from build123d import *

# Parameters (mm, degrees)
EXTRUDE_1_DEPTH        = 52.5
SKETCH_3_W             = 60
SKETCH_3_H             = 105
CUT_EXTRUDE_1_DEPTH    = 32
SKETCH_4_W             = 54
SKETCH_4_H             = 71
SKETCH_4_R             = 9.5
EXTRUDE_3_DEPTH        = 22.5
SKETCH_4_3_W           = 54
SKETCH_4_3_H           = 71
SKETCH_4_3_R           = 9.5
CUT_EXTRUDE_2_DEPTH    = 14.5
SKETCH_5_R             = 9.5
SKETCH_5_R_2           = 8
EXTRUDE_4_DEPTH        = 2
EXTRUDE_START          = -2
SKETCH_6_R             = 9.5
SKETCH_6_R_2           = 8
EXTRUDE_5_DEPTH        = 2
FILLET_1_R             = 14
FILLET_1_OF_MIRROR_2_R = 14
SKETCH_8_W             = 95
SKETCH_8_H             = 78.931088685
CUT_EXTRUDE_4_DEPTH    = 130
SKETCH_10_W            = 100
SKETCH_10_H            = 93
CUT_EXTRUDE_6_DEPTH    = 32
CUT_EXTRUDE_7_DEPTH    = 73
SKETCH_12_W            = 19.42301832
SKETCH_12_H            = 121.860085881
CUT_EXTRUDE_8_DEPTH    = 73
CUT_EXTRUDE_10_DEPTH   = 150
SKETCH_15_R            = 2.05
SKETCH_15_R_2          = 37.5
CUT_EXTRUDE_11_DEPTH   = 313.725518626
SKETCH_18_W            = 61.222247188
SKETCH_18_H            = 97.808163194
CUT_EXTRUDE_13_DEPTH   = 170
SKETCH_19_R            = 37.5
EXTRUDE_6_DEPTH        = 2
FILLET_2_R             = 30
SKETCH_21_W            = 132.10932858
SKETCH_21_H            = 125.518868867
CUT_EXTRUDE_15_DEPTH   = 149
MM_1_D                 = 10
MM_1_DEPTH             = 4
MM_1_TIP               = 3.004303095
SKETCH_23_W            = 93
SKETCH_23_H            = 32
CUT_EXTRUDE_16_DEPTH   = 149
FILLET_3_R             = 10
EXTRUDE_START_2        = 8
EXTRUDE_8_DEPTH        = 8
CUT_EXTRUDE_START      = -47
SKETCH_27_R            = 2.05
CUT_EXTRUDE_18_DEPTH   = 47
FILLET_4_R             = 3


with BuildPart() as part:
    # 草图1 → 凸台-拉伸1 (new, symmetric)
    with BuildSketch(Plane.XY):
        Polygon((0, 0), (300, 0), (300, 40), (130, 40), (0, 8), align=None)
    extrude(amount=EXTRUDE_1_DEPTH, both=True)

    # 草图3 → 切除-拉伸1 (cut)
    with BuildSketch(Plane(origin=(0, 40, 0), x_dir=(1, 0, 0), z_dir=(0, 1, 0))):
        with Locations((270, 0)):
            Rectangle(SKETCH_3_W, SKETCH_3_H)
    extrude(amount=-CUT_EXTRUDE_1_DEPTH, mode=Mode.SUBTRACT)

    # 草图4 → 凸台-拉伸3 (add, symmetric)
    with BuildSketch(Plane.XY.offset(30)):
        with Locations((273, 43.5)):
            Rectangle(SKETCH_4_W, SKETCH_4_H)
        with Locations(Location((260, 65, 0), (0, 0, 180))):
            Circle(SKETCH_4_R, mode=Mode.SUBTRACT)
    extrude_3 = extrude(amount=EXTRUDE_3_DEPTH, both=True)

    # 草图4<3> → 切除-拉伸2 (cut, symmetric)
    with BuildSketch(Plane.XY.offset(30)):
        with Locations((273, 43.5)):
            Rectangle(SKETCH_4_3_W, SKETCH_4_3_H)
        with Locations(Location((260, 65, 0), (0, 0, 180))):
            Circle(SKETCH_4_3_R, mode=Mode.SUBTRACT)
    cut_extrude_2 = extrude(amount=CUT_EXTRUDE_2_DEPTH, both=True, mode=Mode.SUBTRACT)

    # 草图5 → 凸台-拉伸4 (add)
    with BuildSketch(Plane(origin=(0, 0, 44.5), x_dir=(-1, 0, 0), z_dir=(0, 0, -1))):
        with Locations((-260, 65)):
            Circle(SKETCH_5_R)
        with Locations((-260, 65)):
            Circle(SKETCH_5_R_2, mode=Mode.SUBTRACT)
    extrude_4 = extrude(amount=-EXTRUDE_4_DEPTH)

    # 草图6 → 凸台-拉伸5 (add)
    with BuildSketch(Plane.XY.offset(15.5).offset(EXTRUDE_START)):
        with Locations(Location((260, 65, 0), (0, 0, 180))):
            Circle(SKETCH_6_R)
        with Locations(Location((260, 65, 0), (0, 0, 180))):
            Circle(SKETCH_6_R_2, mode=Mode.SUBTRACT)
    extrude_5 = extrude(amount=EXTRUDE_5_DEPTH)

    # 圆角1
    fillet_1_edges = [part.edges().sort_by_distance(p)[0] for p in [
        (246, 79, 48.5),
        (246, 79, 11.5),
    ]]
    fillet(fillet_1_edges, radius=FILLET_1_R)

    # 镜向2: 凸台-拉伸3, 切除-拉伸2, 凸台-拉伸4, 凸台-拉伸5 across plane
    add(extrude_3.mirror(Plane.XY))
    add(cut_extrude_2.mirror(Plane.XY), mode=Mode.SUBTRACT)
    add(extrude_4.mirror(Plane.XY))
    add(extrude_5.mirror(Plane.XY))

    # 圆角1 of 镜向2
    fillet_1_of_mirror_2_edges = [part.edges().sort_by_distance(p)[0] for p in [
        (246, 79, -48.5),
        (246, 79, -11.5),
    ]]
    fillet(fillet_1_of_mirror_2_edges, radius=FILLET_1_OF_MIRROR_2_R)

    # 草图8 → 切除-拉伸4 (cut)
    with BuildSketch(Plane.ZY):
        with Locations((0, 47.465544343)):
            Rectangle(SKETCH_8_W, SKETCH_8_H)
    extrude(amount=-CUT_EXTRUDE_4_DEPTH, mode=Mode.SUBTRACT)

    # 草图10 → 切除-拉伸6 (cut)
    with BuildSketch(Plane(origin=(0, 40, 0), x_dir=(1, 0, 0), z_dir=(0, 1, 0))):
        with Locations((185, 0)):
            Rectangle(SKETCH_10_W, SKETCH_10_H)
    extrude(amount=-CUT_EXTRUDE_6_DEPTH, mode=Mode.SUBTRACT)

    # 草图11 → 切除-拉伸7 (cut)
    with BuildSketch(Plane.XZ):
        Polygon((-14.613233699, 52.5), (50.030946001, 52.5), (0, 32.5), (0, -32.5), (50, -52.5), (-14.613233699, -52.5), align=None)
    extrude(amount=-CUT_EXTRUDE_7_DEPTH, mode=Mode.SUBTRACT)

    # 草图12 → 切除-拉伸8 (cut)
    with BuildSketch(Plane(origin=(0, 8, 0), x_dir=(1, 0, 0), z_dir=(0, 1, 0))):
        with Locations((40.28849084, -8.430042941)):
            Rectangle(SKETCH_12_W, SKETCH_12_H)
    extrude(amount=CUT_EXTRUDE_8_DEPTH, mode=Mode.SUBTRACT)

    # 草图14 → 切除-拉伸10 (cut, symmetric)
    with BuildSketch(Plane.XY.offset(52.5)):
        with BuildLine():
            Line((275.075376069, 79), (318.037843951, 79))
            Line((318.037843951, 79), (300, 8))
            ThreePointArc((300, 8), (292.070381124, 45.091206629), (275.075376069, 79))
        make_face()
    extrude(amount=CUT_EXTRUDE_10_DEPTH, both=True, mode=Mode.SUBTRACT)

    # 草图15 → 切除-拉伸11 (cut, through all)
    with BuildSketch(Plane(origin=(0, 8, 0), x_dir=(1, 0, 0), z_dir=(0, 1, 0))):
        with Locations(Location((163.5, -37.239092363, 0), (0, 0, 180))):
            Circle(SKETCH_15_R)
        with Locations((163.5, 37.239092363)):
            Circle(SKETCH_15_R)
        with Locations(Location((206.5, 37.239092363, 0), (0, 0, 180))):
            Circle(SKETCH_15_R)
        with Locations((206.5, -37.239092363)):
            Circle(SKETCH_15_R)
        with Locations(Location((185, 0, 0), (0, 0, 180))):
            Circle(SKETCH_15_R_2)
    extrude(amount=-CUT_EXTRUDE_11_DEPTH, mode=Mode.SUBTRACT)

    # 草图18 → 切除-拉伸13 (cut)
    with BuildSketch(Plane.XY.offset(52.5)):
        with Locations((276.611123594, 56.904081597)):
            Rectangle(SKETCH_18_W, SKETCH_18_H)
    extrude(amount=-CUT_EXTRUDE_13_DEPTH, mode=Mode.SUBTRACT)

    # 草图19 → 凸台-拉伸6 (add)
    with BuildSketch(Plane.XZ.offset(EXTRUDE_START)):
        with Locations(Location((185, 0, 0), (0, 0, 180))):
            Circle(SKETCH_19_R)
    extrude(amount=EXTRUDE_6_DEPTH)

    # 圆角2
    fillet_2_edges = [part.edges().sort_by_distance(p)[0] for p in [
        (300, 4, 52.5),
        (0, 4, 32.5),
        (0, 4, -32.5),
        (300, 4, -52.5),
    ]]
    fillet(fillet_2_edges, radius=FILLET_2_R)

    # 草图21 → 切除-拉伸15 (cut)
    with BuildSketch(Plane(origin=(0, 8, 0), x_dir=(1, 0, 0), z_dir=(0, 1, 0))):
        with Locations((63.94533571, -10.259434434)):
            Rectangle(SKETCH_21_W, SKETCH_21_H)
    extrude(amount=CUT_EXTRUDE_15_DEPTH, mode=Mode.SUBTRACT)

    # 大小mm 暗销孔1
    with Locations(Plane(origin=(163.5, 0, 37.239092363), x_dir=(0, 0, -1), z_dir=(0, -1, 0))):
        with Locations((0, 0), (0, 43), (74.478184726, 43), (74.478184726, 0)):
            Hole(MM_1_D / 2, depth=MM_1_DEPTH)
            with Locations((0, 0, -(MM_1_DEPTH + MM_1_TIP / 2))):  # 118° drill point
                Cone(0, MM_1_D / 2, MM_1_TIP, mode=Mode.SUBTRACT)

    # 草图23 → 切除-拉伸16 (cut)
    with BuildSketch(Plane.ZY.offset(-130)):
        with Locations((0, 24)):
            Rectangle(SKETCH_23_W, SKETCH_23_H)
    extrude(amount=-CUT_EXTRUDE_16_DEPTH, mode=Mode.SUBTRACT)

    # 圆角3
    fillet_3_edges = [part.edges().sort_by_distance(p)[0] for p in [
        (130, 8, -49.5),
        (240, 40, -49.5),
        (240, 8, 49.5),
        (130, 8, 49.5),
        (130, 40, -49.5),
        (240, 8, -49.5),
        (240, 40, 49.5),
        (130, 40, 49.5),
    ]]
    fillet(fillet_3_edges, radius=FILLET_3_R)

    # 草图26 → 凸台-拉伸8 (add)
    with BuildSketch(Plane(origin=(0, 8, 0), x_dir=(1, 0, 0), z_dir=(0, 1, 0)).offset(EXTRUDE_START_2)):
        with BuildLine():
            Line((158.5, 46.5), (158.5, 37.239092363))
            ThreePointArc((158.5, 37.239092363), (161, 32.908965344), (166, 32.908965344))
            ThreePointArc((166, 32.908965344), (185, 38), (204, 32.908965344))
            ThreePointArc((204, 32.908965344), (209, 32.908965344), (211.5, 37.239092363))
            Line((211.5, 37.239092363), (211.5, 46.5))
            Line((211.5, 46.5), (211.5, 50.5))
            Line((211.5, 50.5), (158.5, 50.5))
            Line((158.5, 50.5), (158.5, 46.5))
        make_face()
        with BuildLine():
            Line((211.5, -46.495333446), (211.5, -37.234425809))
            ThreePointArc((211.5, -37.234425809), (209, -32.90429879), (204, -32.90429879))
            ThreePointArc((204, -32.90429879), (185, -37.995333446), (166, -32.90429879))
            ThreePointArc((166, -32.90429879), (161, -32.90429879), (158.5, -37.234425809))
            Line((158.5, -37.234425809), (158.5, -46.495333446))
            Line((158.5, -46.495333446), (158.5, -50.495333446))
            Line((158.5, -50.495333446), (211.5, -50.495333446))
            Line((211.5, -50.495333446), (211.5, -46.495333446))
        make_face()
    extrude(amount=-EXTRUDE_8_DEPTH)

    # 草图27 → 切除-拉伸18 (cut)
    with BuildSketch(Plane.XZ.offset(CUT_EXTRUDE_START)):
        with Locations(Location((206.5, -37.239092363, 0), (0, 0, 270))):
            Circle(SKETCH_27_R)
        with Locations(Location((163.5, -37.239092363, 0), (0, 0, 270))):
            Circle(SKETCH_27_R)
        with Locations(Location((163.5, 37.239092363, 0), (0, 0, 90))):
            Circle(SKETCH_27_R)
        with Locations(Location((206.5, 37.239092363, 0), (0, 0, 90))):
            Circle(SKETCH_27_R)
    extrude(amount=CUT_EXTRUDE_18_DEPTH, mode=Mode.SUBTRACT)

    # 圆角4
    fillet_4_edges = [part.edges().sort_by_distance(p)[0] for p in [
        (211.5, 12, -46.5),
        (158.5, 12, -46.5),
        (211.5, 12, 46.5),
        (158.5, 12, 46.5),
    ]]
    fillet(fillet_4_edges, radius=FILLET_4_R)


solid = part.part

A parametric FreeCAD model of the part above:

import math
import FreeCAD as App
import Part
import Sketcher
from FreeCAD import Vector
Q = App.Units.Quantity


def edges_at(feature, points):
    """Names of the edges that pass closest to the given points."""
    edges = feature.Shape.Edges
    near = lambda p: min(range(len(edges)), key=lambda i: edges[i].distToShape(Part.Vertex(*p))[0])
    return sorted({f"Edge{near(p) + 1}" for p in points})


def add_polygon(sketch, points):
    """Adds a closed chain of lines whose ends are joined by coincident constraints."""
    first, n = sketch.GeometryCount, len(points)
    for a, b in zip(points, points[1:] + points[:1]):
        sketch.addGeometry(Part.LineSegment(App.Vector(*a, 0), App.Vector(*b, 0)), False)
    for i in range(n):
        sketch.addConstraint(Sketcher.Constraint("Coincident", first + i, 2, first + (i + 1) % n, 1))

doc = App.newDocument("Part")
params = doc.addObject("Spreadsheet::Sheet", "Params")
for row, (alias, value) in enumerate([
    ("sketch1_width", "300 mm"),
    ("sketch1_width2", "170 mm"),
    ("sketch1_height", "40 mm"),
    ("sketch1_height2", "8 mm"),
    ("pad1_length", "105 mm"),
    ("sketch2_width", "60 mm"),
    ("sketch2_height", "105 mm"),
    ("pocket1_length", "32 mm"),
    ("sketch3_diameter", "19 mm"),
    ("sketch3_width", "54 mm"),
    ("sketch3_height", "71 mm"),
    ("pad2_length", "45 mm"),
    ("sketch4_diameter", "19 mm"),
    ("sketch4_width", "54 mm"),
    ("sketch4_height", "71 mm"),
    ("pocket2_length", "29 mm"),
    ("sketch5_diameter", "19 mm"),
    ("sketch5_diameter2", "16 mm"),
    ("pad3_length", "2 mm"),
    ("sketch6_diameter", "19 mm"),
    ("sketch6_diameter2", "16 mm"),
    ("pad4_length", "2 mm"),
    ("fillet_radius", "14 mm"),
    ("fillet2_radius", "14 mm"),
    ("sketch7_height", "95 mm"),
    ("pocket3_length", "130 mm"),
    ("sketch8_width", "100 mm"),
    ("sketch8_height", "93 mm"),
    ("pocket4_length", "32 mm"),
    ("sketch9_height", "105 mm"),
    ("sketch9_height2", "65 mm"),
    ("pocket5_length", "73 mm"),
    ("pocket6_length", "73 mm"),
    ("pocket7_length", "300 mm"),
    ("sketch12_diameter", "75 mm"),
    ("sketch12_diameter2", "4.1 mm"),
    ("pocket9_length", "170 mm"),
    ("sketch14_diameter", "75 mm"),
    ("pad5_length", "2 mm"),
    ("fillet3_radius", "30 mm"),
    ("pocket10_length", "149 mm"),
    ("sketch16_diameter", "10 mm"),
    ("hole_diameter", "10 mm"),
    ("hole_depth", "4 mm"),
    ("sketch17_width", "32 mm"),
    ("sketch17_height", "93 mm"),
    ("pocket11_length", "149 mm"),
    ("fillet4_radius", "10 mm"),
    ("sketch18_radius", "5 mm"),
    ("sketch18_radius2", "38 mm"),
    ("sketch18_width", "53 mm"),
    ("pad6_length", "8 mm"),
    ("sketch19_diameter", "4.1 mm"),
    ("pocket12_length", "47 mm"),
    ("fillet5_radius", "3 mm"),
], start=1):
    params.set(f"A{row}", alias)
    params.set(f"B{row}", "=" + value)
    params.setAlias(f"B{row}", alias)

body = doc.addObject("PartDesign::Body", "Body")

sketch1 = body.newObject("Sketcher::SketchObject", "Sketch")
sketch1.AttachmentSupport = (doc.getObject("XY_Plane"), [""])
sketch1.MapMode = "FlatFace"
add_polygon(sketch1, [(0, 0), (300, 0), (300, 40), (130, 40), (0, 8)])
sketch1.addConstraint([
    Sketcher.Constraint("Horizontal", 0),
    Sketcher.Constraint("Vertical", 1),
    Sketcher.Constraint("Horizontal", 2),
    Sketcher.Constraint("Vertical", 4),
    Sketcher.Constraint("Coincident", 4, 2, -1, 1),
    Sketcher.Constraint("DistanceX", 0, 1, 0, 2, Q("300 mm")),
    Sketcher.Constraint("DistanceX", 2, 2, 2, 1, Q("170 mm")),
    Sketcher.Constraint("DistanceY", 1, 1, 1, 2, Q("40 mm")),
    Sketcher.Constraint("DistanceY", 4, 2, 4, 1, Q("8 mm")),
])
sketch1.setExpression("Constraints[10]", "Params.sketch1_width")
sketch1.setExpression("Constraints[11]", "Params.sketch1_width2")
sketch1.setExpression("Constraints[12]", "Params.sketch1_height")
sketch1.setExpression("Constraints[13]", "Params.sketch1_height2")
pad1 = body.newObject("PartDesign::Pad", "Pad")
pad1.Profile = sketch1
pad1.setExpression("Length", "Params.pad1_length")
pad1.Midplane = True

sketch2 = body.newObject("Sketcher::SketchObject", "Sketch001")
sketch2.AttachmentSupport = (doc.getObject("XZ_Plane"), [""])
sketch2.MapMode = "FlatFace"
sketch2.AttachmentOffset = App.Placement(Vector(0, 0, -40), App.Rotation())
add_polygon(sketch2, [(240, -52.5), (240, 52.5), (300, 52.5), (300, -52.5)])
sketch2.addConstraint([
    Sketcher.Constraint("Vertical", 0),
    Sketcher.Constraint("Horizontal", 1),
    Sketcher.Constraint("Vertical", 2),
    Sketcher.Constraint("Horizontal", 3),
    Sketcher.Constraint("DistanceX", 1, 1, 1, 2, Q("60 mm")),
    Sketcher.Constraint("DistanceY", 0, 1, 0, 2, Q("105 mm")),
    Sketcher.Constraint("DistanceX", -1, 1, 0, 2, Q("240 mm")),
    Sketcher.Constraint("DistanceY", -1, 1, 0, 2, Q("52.5 mm")),
])
sketch2.setExpression("Constraints[8]", "Params.sketch2_width")
sketch2.setExpression("Constraints[9]", "Params.sketch2_height")
pocket1 = body.newObject("PartDesign::Pocket", "Pocket")
pocket1.Profile = sketch2
pocket1.setExpression("Length", "Params.pocket1_length")
pocket1.Reversed = True

sketch3 = body.newObject("Sketcher::SketchObject", "Sketch002")
sketch3.AttachmentSupport = (doc.getObject("XY_Plane"), [""])
sketch3.MapMode = "FlatFace"
sketch3.AttachmentOffset = App.Placement(Vector(0, 0, 30), App.Rotation())
add_polygon(sketch3, [(246, 79), (246, 8), (300, 8), (300, 79)])
sketch3.addGeometry(Part.Circle(Vector(260, 65, 0), Vector(0, 0, 1), 9.5), False)
sketch3.addConstraint([
    Sketcher.Constraint("Vertical", 0),
    Sketcher.Constraint("Horizontal", 1),
    Sketcher.Constraint("Vertical", 2),
    Sketcher.Constraint("Horizontal", 3),
    Sketcher.Constraint("Diameter", 4, Q("19 mm")),
    Sketcher.Constraint("DistanceX", 1, 1, 1, 2, Q("54 mm")),
    Sketcher.Constraint("DistanceY", 0, 2, 0, 1, Q("71 mm")),
    Sketcher.Constraint("DistanceX", -1, 1, 4, 3, Q("260 mm")),
    Sketcher.Constraint("DistanceY", -1, 1, 4, 3, Q("65 mm")),
    Sketcher.Constraint("DistanceX", -1, 1, 0, 2, Q("246 mm")),
    Sketcher.Constraint("DistanceY", -1, 1, 0, 2, Q("8 mm")),
])
sketch3.setExpression("Constraints[8]", "Params.sketch3_diameter")
sketch3.setExpression("Constraints[9]", "Params.sketch3_width")
sketch3.setExpression("Constraints[10]", "Params.sketch3_height")
pad2 = body.newObject("PartDesign::Pad", "Pad001")
pad2.Profile = sketch3
pad2.setExpression("Length", "Params.pad2_length")
pad2.Midplane = True

sketch4 = body.newObject("Sketcher::SketchObject", "Sketch003")
sketch4.AttachmentSupport = (doc.getObject("XY_Plane"), [""])
sketch4.MapMode = "FlatFace"
sketch4.AttachmentOffset = App.Placement(Vector(0, 0, 30), App.Rotation())
add_polygon(sketch4, [(246, 79), (246, 8), (300, 8), (300, 79)])
sketch4.addGeometry(Part.Circle(Vector(260, 65, 0), Vector(0, 0, 1), 9.5), False)
sketch4.addConstraint([
    Sketcher.Constraint("Vertical", 0),
    Sketcher.Constraint("Horizontal", 1),
    Sketcher.Constraint("Vertical", 2),
    Sketcher.Constraint("Horizontal", 3),
    Sketcher.Constraint("Diameter", 4, Q("19 mm")),
    Sketcher.Constraint("DistanceX", 1, 1, 1, 2, Q("54 mm")),
    Sketcher.Constraint("DistanceY", 0, 2, 0, 1, Q("71 mm")),
    Sketcher.Constraint("DistanceX", -1, 1, 4, 3, Q("260 mm")),
    Sketcher.Constraint("DistanceY", -1, 1, 4, 3, Q("65 mm")),
    Sketcher.Constraint("DistanceX", -1, 1, 0, 2, Q("246 mm")),
    Sketcher.Constraint("DistanceY", -1, 1, 0, 2, Q("8 mm")),
])
sketch4.setExpression("Constraints[8]", "Params.sketch4_diameter")
sketch4.setExpression("Constraints[9]", "Params.sketch4_width")
sketch4.setExpression("Constraints[10]", "Params.sketch4_height")
pocket2 = body.newObject("PartDesign::Pocket", "Pocket001")
pocket2.Profile = sketch4
pocket2.setExpression("Length", "Params.pocket2_length")
pocket2.Midplane = True

sketch5 = body.newObject("Sketcher::SketchObject", "Sketch004")
sketch5.AttachmentSupport = (doc.getObject("XY_Plane"), [""])
sketch5.MapMode = "FlatFace"
sketch5.AttachmentOffset = App.Placement(Vector(0, 0, 44.5), App.Rotation())
sketch5.addGeometry([
    Part.Circle(Vector(260, 65, 0), Vector(0, 0, 1), 9.5),
    Part.Circle(Vector(260, 65, 0), Vector(0, 0, 1), 8),
], False)
sketch5.addConstraint([
    Sketcher.Constraint("Coincident", 1, 3, 0, 3),
    Sketcher.Constraint("Diameter", 0, Q("19 mm")),
    Sketcher.Constraint("Diameter", 1, Q("16 mm")),
    Sketcher.Constraint("DistanceX", -1, 1, 0, 3, Q("260 mm")),
    Sketcher.Constraint("DistanceY", -1, 1, 0, 3, Q("65 mm")),
])
sketch5.setExpression("Constraints[1]", "Params.sketch5_diameter")
sketch5.setExpression("Constraints[2]", "Params.sketch5_diameter2")
pad3 = body.newObject("PartDesign::Pad", "Pad002")
pad3.Profile = sketch5
pad3.setExpression("Length", "Params.pad3_length")

sketch6 = body.newObject("Sketcher::SketchObject", "Sketch005")
sketch6.AttachmentSupport = (doc.getObject("XY_Plane"), [""])
sketch6.MapMode = "FlatFace"
sketch6.AttachmentOffset = App.Placement(Vector(0, 0, 13.5), App.Rotation())
sketch6.addGeometry([
    Part.Circle(Vector(260, 65, 0), Vector(0, 0, 1), 9.5),
    Part.Circle(Vector(260, 65, 0), Vector(0, 0, 1), 8),
], False)
sketch6.addConstraint([
    Sketcher.Constraint("Coincident", 1, 3, 0, 3),
    Sketcher.Constraint("Diameter", 0, Q("19 mm")),
    Sketcher.Constraint("Diameter", 1, Q("16 mm")),
    Sketcher.Constraint("DistanceX", -1, 1, 0, 3, Q("260 mm")),
    Sketcher.Constraint("DistanceY", -1, 1, 0, 3, Q("65 mm")),
])
sketch6.setExpression("Constraints[1]", "Params.sketch6_diameter")
sketch6.setExpression("Constraints[2]", "Params.sketch6_diameter2")
pad4 = body.newObject("PartDesign::Pad", "Pad003")
pad4.Profile = sketch6
pad4.setExpression("Length", "Params.pad4_length")
doc.recompute()

fillet = body.newObject("PartDesign::Fillet", "Fillet")
fillet.Base = (pad4, edges_at(pad4, [(246, 79, 48.5), (246, 79, 11.5)]))
fillet.setExpression("Radius", "Params.fillet_radius")
doc.recompute()

mirrored = body.newObject("PartDesign::Mirrored", "Mirrored")
mirrored.Originals = [pad2, pocket2, pad3, pad4]
mirrored.MirrorPlane = (doc.getObject("XY_Plane"), [""])
body.Tip = mirrored
doc.recompute()

fillet2 = body.newObject("PartDesign::Fillet", "Fillet001")
fillet2.Base = (mirrored, edges_at(mirrored, [(246, 79, -48.5), (246, 79, -11.5)]))
fillet2.setExpression("Radius", "Params.fillet2_radius")

sketch7 = body.newObject("Sketcher::SketchObject", "Sketch006")
sketch7.AttachmentSupport = (doc.getObject("YZ_Plane"), [""])
sketch7.MapMode = "FlatFace"
add_polygon(sketch7, [(86.931089, -47.5), (8, -47.5), (8, 47.5), (86.931089, 47.5)])
sketch7.addConstraint([
    Sketcher.Constraint("Horizontal", 0),
    Sketcher.Constraint("Vertical", 1),
    Sketcher.Constraint("Horizontal", 2),
    Sketcher.Constraint("Vertical", 3),
    Sketcher.Constraint("DistanceY", 1, 1, 1, 2, Q("95 mm")),
    Sketcher.Constraint("DistanceX", -1, 1, 0, 2, Q("8 mm")),
    Sketcher.Constraint("DistanceY", 0, 2, -1, 1, Q("47.5 mm")),
    Sketcher.Constraint("DistanceX", 0, 2, 0, 1, Q("78.931089 mm")),
])
sketch7.setExpression("Constraints[8]", "Params.sketch7_height")
pocket3 = body.newObject("PartDesign::Pocket", "Pocket002")
pocket3.Profile = sketch7
pocket3.setExpression("Length", "Params.pocket3_length")
pocket3.Reversed = True

sketch8 = body.newObject("Sketcher::SketchObject", "Sketch007")
sketch8.AttachmentSupport = (doc.getObject("XZ_Plane"), [""])
sketch8.MapMode = "FlatFace"
sketch8.AttachmentOffset = App.Placement(Vector(0, 0, -40), App.Rotation())
add_polygon(sketch8, [(135, -46.5), (135, 46.5), (235, 46.5), (235, -46.5)])
sketch8.addConstraint([
    Sketcher.Constraint("Vertical", 0),
    Sketcher.Constraint("Horizontal", 1),
    Sketcher.Constraint("Vertical", 2),
    Sketcher.Constraint("Horizontal", 3),
    Sketcher.Constraint("DistanceX", 1, 1, 1, 2, Q("100 mm")),
    Sketcher.Constraint("DistanceY", 0, 1, 0, 2, Q("93 mm")),
    Sketcher.Constraint("DistanceX", -1, 1, 0, 2, Q("135 mm")),
    Sketcher.Constraint("DistanceY", -1, 1, 0, 2, Q("46.5 mm")),
])
sketch8.setExpression("Constraints[8]", "Params.sketch8_width")
sketch8.setExpression("Constraints[9]", "Params.sketch8_height")
pocket4 = body.newObject("PartDesign::Pocket", "Pocket003")
pocket4.Profile = sketch8
pocket4.setExpression("Length", "Params.pocket4_length")
pocket4.Reversed = True

sketch9 = body.newObject("Sketcher::SketchObject", "Sketch008")
sketch9.AttachmentSupport = (doc.getObject("XZ_Plane"), [""])
sketch9.MapMode = "FlatFace"
add_polygon(sketch9, [(50.030946, 52.5), (-14.613234, 52.5), (-14.613234, -52.5), (50, -52.5), (0, -32.5), (0, 32.5)])
sketch9.addConstraint([
    Sketcher.Constraint("Horizontal", 0),
    Sketcher.Constraint("Vertical", 1),
    Sketcher.Constraint("Horizontal", 2),
    Sketcher.Constraint("Vertical", 4),
    Sketcher.Constraint("Symmetric", 3, 2, 4, 2, -1, 1),
    Sketcher.Constraint("DistanceY", 1, 2, 1, 1, Q("105 mm")),
    Sketcher.Constraint("DistanceY", 4, 1, 4, 2, Q("65 mm")),
    Sketcher.Constraint("DistanceX", -1, 1, 2, 2, Q("50 mm")),
    Sketcher.Constraint("DistanceY", 1, 2, 3, 2, Q("20 mm")),
    Sketcher.Constraint("DistanceX", 0, 2, 0, 1, Q("64.64418 mm")),
    Sketcher.Constraint("Distance", 5, Q("53.880382 mm")),
])
sketch9.setExpression("Constraints[11]", "Params.sketch9_height")
sketch9.setExpression("Constraints[12]", "Params.sketch9_height2")
pocket5 = body.newObject("PartDesign::Pocket", "Pocket004")
pocket5.Profile = sketch9
pocket5.setExpression("Length", "Params.pocket5_length")

sketch10 = body.newObject("Sketcher::SketchObject", "Sketch009")
sketch10.AttachmentSupport = (doc.getObject("XZ_Plane"), [""])
sketch10.MapMode = "FlatFace"
sketch10.AttachmentOffset = App.Placement(Vector(0, 0, -8), App.Rotation())
add_polygon(sketch10, [(30.576982, -52.5), (30.576982, 69.360086), (50, 69.360086), (50, -52.5)])
sketch10.addConstraint([
    Sketcher.Constraint("Vertical", 0),
    Sketcher.Constraint("Horizontal", 1),
    Sketcher.Constraint("Vertical", 2),
    Sketcher.Constraint("Horizontal", 3),
    Sketcher.Constraint("DistanceX", -1, 1, 1, 2, Q("50 mm")),
    Sketcher.Constraint("DistanceY", 2, 2, -1, 1, Q("52.5 mm")),
    Sketcher.Constraint("DistanceX", 1, 1, 1, 2, Q("19.423018 mm")),
    Sketcher.Constraint("DistanceY", 0, 1, 0, 2, Q("121.860086 mm")),
])
pocket6 = body.newObject("PartDesign::Pocket", "Pocket005")
pocket6.Profile = sketch10
pocket6.setExpression("Length", "Params.pocket6_length")

sketch11 = body.newObject("Sketcher::SketchObject", "Sketch010")
sketch11.AttachmentSupport = (doc.getObject("XY_Plane"), [""])
sketch11.MapMode = "FlatFace"
sketch11.AttachmentOffset = App.Placement(Vector(0, 0, 52.5), App.Rotation())
sketch11.addGeometry([
    Part.LineSegment(Vector(318.037844, 79, 0), Vector(275.075376, 79, 0)),
    Part.ArcOfCircle(Part.Circle(Vector(150.786239, -4.506738, 0), Vector(0, 0, 1), 149.736986), math.radians(4.791195), math.radians(33.896159)),
    Part.LineSegment(Vector(300, 8, 0), Vector(318.037844, 79, 0)),
], False)
sketch11.addConstraint([
    Sketcher.Constraint("Coincident", 0, 2, 1, 2),
    Sketcher.Constraint("Coincident", 1, 1, 2, 1),
    Sketcher.Constraint("Coincident", 2, 2, 0, 1),
    Sketcher.Constraint("Horizontal", 0),
    Sketcher.Constraint("DistanceY", -1, 1, 0, 2, Q("79 mm")),
    Sketcher.Constraint("DistanceX", -1, 1, 1, 1, Q("300 mm")),
    Sketcher.Constraint("DistanceY", -1, 1, 1, 1, Q("8 mm")),
    Sketcher.Constraint("Radius", 1, Q("149.736986 mm")),
    Sketcher.Constraint("Distance", 2, Q("73.25547 mm")),
    Sketcher.Constraint("DistanceX", 0, 2, 0, 1, Q("42.962468 mm")),
])
pocket7 = body.newObject("PartDesign::Pocket", "Pocket006")
pocket7.Profile = sketch11
pocket7.setExpression("Length", "Params.pocket7_length")
pocket7.Midplane = True

sketch12 = body.newObject("Sketcher::SketchObject", "Sketch011")
sketch12.AttachmentSupport = (doc.getObject("XZ_Plane"), [""])
sketch12.MapMode = "FlatFace"
sketch12.AttachmentOffset = App.Placement(Vector(0, 0, -8), App.Rotation())
sketch12.addGeometry([
    Part.Circle(Vector(163.5, 37.239092, 0), Vector(0, 0, 1), 2.05),
    Part.Circle(Vector(163.5, -37.239092, 0), Vector(0, 0, 1), 2.05),
    Part.Circle(Vector(206.5, -37.239092, 0), Vector(0, 0, 1), 2.05),
    Part.Circle(Vector(206.5, 37.239092, 0), Vector(0, 0, 1), 2.05),
    Part.Circle(Vector(185, 0, 0), Vector(0, 0, 1), 37.5),
], False)
sketch12.addConstraint([
    Sketcher.Constraint("Equal", 0, 1),
    Sketcher.Constraint("Equal", 1, 2),
    Sketcher.Constraint("Equal", 2, 3),
    Sketcher.Constraint("Symmetric", 0, 3, 1, 3, -1),
    Sketcher.Constraint("Symmetric", 2, 3, 3, 3, -1),
    Sketcher.Constraint("PointOnObject", 4, 3, -1),
    Sketcher.Constraint("Horizontal", 1, 3, 2, 3),
    Sketcher.Constraint("Diameter", 4, Q("75 mm")),
    Sketcher.Constraint("Diameter", 0, Q("4.1 mm")),
    Sketcher.Constraint("DistanceX", -1, 1, 4, 3, Q("185 mm")),
    Sketcher.Constraint("DistanceX", 1, 3, 2, 3, Q("43 mm")),
    Sketcher.Constraint("DistanceX", -1, 1, 0, 3, Q("163.5 mm")),
    Sketcher.Constraint("DistanceY", -1, 1, 0, 3, Q("37.239092 mm")),
])
sketch12.setExpression("Constraints[7]", "Params.sketch12_diameter")
sketch12.setExpression("Constraints[8]", "Params.sketch12_diameter2")
pocket8 = body.newObject("PartDesign::Pocket", "Pocket007")
pocket8.Profile = sketch12
pocket8.Type = "ThroughAll"
pocket8.Reversed = True

sketch13 = body.newObject("Sketcher::SketchObject", "Sketch012")
sketch13.AttachmentSupport = (doc.getObject("XY_Plane"), [""])
sketch13.MapMode = "FlatFace"
sketch13.AttachmentOffset = App.Placement(Vector(0, 0, 52.5), App.Rotation())
add_polygon(sketch13, [(246, 105.808163), (246, 8), (307.222247, 8), (307.222247, 105.808163)])
sketch13.addConstraint([
    Sketcher.Constraint("Vertical", 0),
    Sketcher.Constraint("Horizontal", 1),
    Sketcher.Constraint("Vertical", 2),
    Sketcher.Constraint("Horizontal", 3),
    Sketcher.Constraint("DistanceX", -1, 1, 0, 2, Q("246 mm")),
    Sketcher.Constraint("DistanceY", -1, 1, 0, 2, Q("8 mm")),
    Sketcher.Constraint("DistanceX", 1, 1, 1, 2, Q("61.222247 mm")),
    Sketcher.Constraint("DistanceY", 0, 2, 0, 1, Q("97.808163 mm")),
])
pocket9 = body.newObject("PartDesign::Pocket", "Pocket008")
pocket9.Profile = sketch13
pocket9.setExpression("Length", "Params.pocket9_length")

sketch14 = body.newObject("Sketcher::SketchObject", "Sketch013")
sketch14.AttachmentSupport = (doc.getObject("XZ_Plane"), [""])
sketch14.MapMode = "FlatFace"
sketch14.AttachmentOffset = App.Placement(Vector(0, 0, -2), App.Rotation())
sketch14.addGeometry(Part.Circle(Vector(185, 0, 0), Vector(0, 0, 1), 37.5), False)
sketch14.addConstraint([
    Sketcher.Constraint("PointOnObject", 0, 3, -1),
    Sketcher.Constraint("Diameter", 0, Q("75 mm")),
    Sketcher.Constraint("DistanceX", -1, 1, 0, 3, Q("185 mm")),
])
sketch14.setExpression("Constraints[1]", "Params.sketch14_diameter")
pad5 = body.newObject("PartDesign::Pad", "Pad004")
pad5.Profile = sketch14
pad5.setExpression("Length", "Params.pad5_length")
doc.recompute()

fillet3 = body.newObject("PartDesign::Fillet", "Fillet002")
fillet3.Base = (pad5, edges_at(pad5, [
    (300, 4, 52.5),
    (0, 4, 32.5),
    (0, 4, -32.5),
    (300, 4, -52.5),
]))
fillet3.setExpression("Radius", "Params.fillet3_radius")

sketch15 = body.newObject("Sketcher::SketchObject", "Sketch014")
sketch15.AttachmentSupport = (doc.getObject("XZ_Plane"), [""])
sketch15.MapMode = "FlatFace"
sketch15.AttachmentOffset = App.Placement(Vector(0, 0, -8), App.Rotation())
add_polygon(sketch15, [(-2.109329, -52.5), (-2.109329, 73.018869), (130, 73.018869), (130, -52.5)])
sketch15.addConstraint([
    Sketcher.Constraint("Vertical", 0),
    Sketcher.Constraint("Horizontal", 1),
    Sketcher.Constraint("Vertical", 2),
    Sketcher.Constraint("Horizontal", 3),
    Sketcher.Constraint("DistanceX", -1, 1, 1, 2, Q("130 mm")),
    Sketcher.Constraint("DistanceY", 2, 2, -1, 1, Q("52.5 mm")),
    Sketcher.Constraint("DistanceX", 1, 1, 1, 2, Q("132.109329 mm")),
    Sketcher.Constraint("DistanceY", 0, 1, 0, 2, Q("125.518869 mm")),
])
pocket10 = body.newObject("PartDesign::Pocket", "Pocket009")
pocket10.Profile = sketch15
pocket10.setExpression("Length", "Params.pocket10_length")

sketch16 = body.newObject("Sketcher::SketchObject", "Sketch015")
sketch16.AttachmentSupport = (doc.getObject("XZ_Plane"), [""])
sketch16.MapMode = "FlatFace"
sketch16.addGeometry([
    Part.Circle(Vector(163.5, 37.239092, 0), Vector(0, 0, 1), 5),
    Part.Circle(Vector(206.5, 37.239092, 0), Vector(0, 0, 1), 5),
    Part.Circle(Vector(206.5, -37.239092, 0), Vector(0, 0, 1), 5),
    Part.Circle(Vector(163.5, -37.239092, 0), Vector(0, 0, 1), 5),
], False)
sketch16.addConstraint([
    Sketcher.Constraint("Equal", 0, 1),
    Sketcher.Constraint("Equal", 1, 2),
    Sketcher.Constraint("Equal", 2, 3),
    Sketcher.Constraint("Symmetric", 1, 3, 2, 3, -1),
    Sketcher.Constraint("Symmetric", 0, 3, 3, 3, -1),
    Sketcher.Constraint("Horizontal", 0, 3, 1, 3),
    Sketcher.Constraint("Diameter", 0, Q("10 mm")),
    Sketcher.Constraint("DistanceX", 0, 3, 1, 3, Q("43 mm")),
    Sketcher.Constraint("DistanceX", -1, 1, 0, 3, Q("163.5 mm")),
    Sketcher.Constraint("DistanceY", -1, 1, 0, 3, Q("37.239092 mm")),
])
sketch16.setExpression("Constraints[6]", "Params.sketch16_diameter")
doc.recompute()
hole = body.newObject("PartDesign::Hole", "Hole")
hole.Profile = sketch16
hole.ThreadType = "None"
hole.setExpression("Diameter", "Params.hole_diameter")
hole.DepthType = "Dimension"
hole.setExpression("Depth", "Params.hole_depth")
hole.DrillPoint = "Angled"
hole.DrillPointAngle = 118

sketch17 = body.newObject("Sketcher::SketchObject", "Sketch016")
sketch17.AttachmentSupport = (doc.getObject("YZ_Plane"), [""])
sketch17.MapMode = "FlatFace"
sketch17.AttachmentOffset = App.Placement(Vector(0, 0, 130), App.Rotation())
add_polygon(sketch17, [(40, -46.5), (8, -46.5), (8, 46.5), (40, 46.5)])
sketch17.addConstraint([
    Sketcher.Constraint("Horizontal", 0),
    Sketcher.Constraint("Vertical", 1),
    Sketcher.Constraint("Horizontal", 2),
    Sketcher.Constraint("Vertical", 3),
    Sketcher.Constraint("DistanceX", 0, 2, 0, 1, Q("32 mm")),
    Sketcher.Constraint("DistanceY", 1, 1, 1, 2, Q("93 mm")),
    Sketcher.Constraint("DistanceX", -1, 1, 0, 2, Q("8 mm")),
    Sketcher.Constraint("DistanceY", 0, 2, -1, 1, Q("46.5 mm")),
])
sketch17.setExpression("Constraints[8]", "Params.sketch17_width")
sketch17.setExpression("Constraints[9]", "Params.sketch17_height")
pocket11 = body.newObject("PartDesign::Pocket", "Pocket010")
pocket11.Profile = sketch17
pocket11.setExpression("Length", "Params.pocket11_length")
pocket11.Reversed = True
doc.recompute()

fillet4 = body.newObject("PartDesign::Fillet", "Fillet003")
fillet4.Base = (pocket11, edges_at(pocket11, [
    (130, 8, -50),
    (240, 40, -49.5),
    (240, 8, 49.5),
    (130, 8, 50),
    (130, 40, -49.5),
    (240, 8, -49.5),
    (240, 40, 49.5),
    (130, 40, 49.5),
]))
fillet4.setExpression("Radius", "Params.fillet4_radius")

sketch18 = body.newObject("Sketcher::SketchObject", "Sketch017")
sketch18.AttachmentSupport = (doc.getObject("XZ_Plane"), [""])
sketch18.MapMode = "FlatFace"
sketch18.AttachmentOffset = App.Placement(Vector(0, 0, -16), App.Rotation())
sketch18.addGeometry([
    Part.ArcOfCircle(Part.Circle(Vector(163.5, -37.239092, 0), Vector(0, 0, 1), 5), math.radians(60), math.radians(180)),
    Part.ArcOfCircle(Part.Circle(Vector(185, 0, 0), Vector(0, 0, 1), 38), math.radians(-120), math.radians(-60)),
    Part.ArcOfCircle(Part.Circle(Vector(206.5, -37.239092, 0), Vector(0, 0, 1), 5), math.radians(0), math.radians(120)),
    Part.LineSegment(Vector(211.5, -37.239092, 0), Vector(211.5, -50.5, 0)),
    Part.LineSegment(Vector(211.5, -50.5, 0), Vector(158.5, -50.5, 0)),
    Part.LineSegment(Vector(158.5, -50.5, 0), Vector(158.5, -37.239092, 0)),
    Part.ArcOfCircle(Part.Circle(Vector(206.5, 37.234426, 0), Vector(0, 0, 1), 5), math.radians(-120), math.radians(0)),
    Part.ArcOfCircle(Part.Circle(Vector(185, -0.004667, 0), Vector(0, 0, 1), 38), math.radians(60), math.radians(120)),
    Part.ArcOfCircle(Part.Circle(Vector(163.5, 37.234426, 0), Vector(0, 0, 1), 5), math.radians(180), math.radians(300)),
    Part.LineSegment(Vector(158.5, 37.234426, 0), Vector(158.5, 50.495333, 0)),
    Part.LineSegment(Vector(158.5, 50.495333, 0), Vector(211.5, 50.495333, 0)),
    Part.LineSegment(Vector(211.5, 50.495333, 0), Vector(211.5, 37.234426, 0)),
], False)
sketch18.addConstraint([
    Sketcher.Constraint("Tangent", 0, 1, 1, 1),
    Sketcher.Constraint("Tangent", 1, 2, 2, 2),
    Sketcher.Constraint("Tangent", 2, 1, 3, 1),
    Sketcher.Constraint("Coincident", 3, 2, 4, 1),
    Sketcher.Constraint("Coincident", 4, 2, 5, 1),
    Sketcher.Constraint("Tangent", 5, 2, 0, 2),
    Sketcher.Constraint("Tangent", 6, 1, 7, 1),
    Sketcher.Constraint("Tangent", 7, 2, 8, 2),
    Sketcher.Constraint("Tangent", 8, 1, 9, 1),
    Sketcher.Constraint("Coincident", 9, 2, 10, 1),
    Sketcher.Constraint("Coincident", 10, 2, 11, 1),
    Sketcher.Constraint("Tangent", 11, 2, 6, 2),
    Sketcher.Constraint("Vertical", 3),
    Sketcher.Constraint("Horizontal", 4),
    Sketcher.Constraint("Vertical", 5),
    Sketcher.Constraint("Vertical", 9),
    Sketcher.Constraint("Horizontal", 10),
    Sketcher.Constraint("Vertical", 11),
    Sketcher.Constraint("Equal", 0, 2),
    Sketcher.Constraint("Equal", 2, 6),
    Sketcher.Constraint("Equal", 1, 7),
    Sketcher.Constraint("Equal", 6, 8),
    Sketcher.Constraint("PointOnObject", 1, 3, -1),
    Sketcher.Constraint("Horizontal", 0, 3, 2, 3),
    Sketcher.Constraint("Horizontal", 6, 3, 8, 3),
    Sketcher.Constraint("Vertical", 2, 3, 6, 3),
    Sketcher.Constraint("Vertical", 1, 3, 7, 3),
    Sketcher.Constraint("Equal", 5, 9),
    Sketcher.Constraint("Radius", 0, Q("5 mm")),
    Sketcher.Constraint("Radius", 1, Q("38 mm")),
    Sketcher.Constraint("DistanceX", 4, 2, 4, 1, Q("53 mm")),
    Sketcher.Constraint("DistanceX", -1, 1, 1, 3, Q("185 mm")),
    Sketcher.Constraint("DistanceY", 3, 2, -1, 1, Q("50.5 mm")),
    Sketcher.Constraint("DistanceY", -1, 1, 6, 1, Q("32.904299 mm")),
])
sketch18.setExpression("Constraints[28]", "Params.sketch18_radius")
sketch18.setExpression("Constraints[29]", "Params.sketch18_radius2")
sketch18.setExpression("Constraints[30]", "Params.sketch18_width")
pad6 = body.newObject("PartDesign::Pad", "Pad005")
pad6.Profile = sketch18
pad6.setExpression("Length", "Params.pad6_length")

sketch19 = body.newObject("Sketcher::SketchObject", "Sketch018")
sketch19.AttachmentSupport = (doc.getObject("XZ_Plane"), [""])
sketch19.MapMode = "FlatFace"
sketch19.AttachmentOffset = App.Placement(Vector(0, 0, -47), App.Rotation())
sketch19.addGeometry([
    Part.Circle(Vector(206.5, -37.239092, 0), Vector(0, 0, 1), 2.05),
    Part.Circle(Vector(163.5, -37.239092, 0), Vector(0, 0, 1), 2.05),
    Part.Circle(Vector(163.5, 37.239092, 0), Vector(0, 0, 1), 2.05),
    Part.Circle(Vector(206.5, 37.239092, 0), Vector(0, 0, 1), 2.05),
], False)
sketch19.addConstraint([
    Sketcher.Constraint("Equal", 0, 1),
    Sketcher.Constraint("Equal", 1, 2),
    Sketcher.Constraint("Equal", 2, 3),
    Sketcher.Constraint("Symmetric", 1, 3, 2, 3, -1),
    Sketcher.Constraint("Symmetric", 0, 3, 3, 3, -1),
    Sketcher.Constraint("Horizontal", 0, 3, 1, 3),
    Sketcher.Constraint("Diameter", 0, Q("4.1 mm")),
    Sketcher.Constraint("DistanceX", 1, 3, 0, 3, Q("43 mm")),
    Sketcher.Constraint("DistanceX", -1, 1, 0, 3, Q("206.5 mm")),
    Sketcher.Constraint("DistanceY", 0, 3, -1, 1, Q("37.239092 mm")),
])
sketch19.setExpression("Constraints[6]", "Params.sketch19_diameter")
pocket12 = body.newObject("PartDesign::Pocket", "Pocket011")
pocket12.Profile = sketch19
pocket12.setExpression("Length", "Params.pocket12_length")
pocket12.Reversed = True
doc.recompute()

fillet5 = body.newObject("PartDesign::Fillet", "Fillet004")
fillet5.Base = (pocket12, edges_at(pocket12, [
    (211.5, 12, -46.5),
    (158.5, 12, -46.5),
    (211.5, 12, 46.5),
    (158.5, 12, 46.5),
]))
fillet5.setExpression("Radius", "Params.fillet5_radius")

doc.recompute()
